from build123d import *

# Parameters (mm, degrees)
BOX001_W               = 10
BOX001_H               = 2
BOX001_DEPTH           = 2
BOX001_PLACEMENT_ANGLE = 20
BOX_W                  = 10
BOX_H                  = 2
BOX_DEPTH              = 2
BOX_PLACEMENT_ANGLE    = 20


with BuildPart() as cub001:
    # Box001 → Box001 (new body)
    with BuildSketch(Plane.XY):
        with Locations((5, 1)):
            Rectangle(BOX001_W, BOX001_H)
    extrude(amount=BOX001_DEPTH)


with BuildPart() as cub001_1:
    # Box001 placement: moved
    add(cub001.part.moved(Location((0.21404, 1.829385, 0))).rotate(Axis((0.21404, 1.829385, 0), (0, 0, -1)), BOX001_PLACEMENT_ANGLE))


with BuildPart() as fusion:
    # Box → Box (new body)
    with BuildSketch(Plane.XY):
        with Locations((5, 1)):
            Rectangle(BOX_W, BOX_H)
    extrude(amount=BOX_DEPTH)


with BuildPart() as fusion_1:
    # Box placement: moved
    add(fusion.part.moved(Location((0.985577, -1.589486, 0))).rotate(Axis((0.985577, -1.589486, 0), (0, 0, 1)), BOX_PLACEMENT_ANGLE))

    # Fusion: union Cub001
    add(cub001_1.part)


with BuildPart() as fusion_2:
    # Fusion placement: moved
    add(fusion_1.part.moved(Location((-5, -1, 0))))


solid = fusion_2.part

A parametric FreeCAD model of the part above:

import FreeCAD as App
import Part
import Sketcher

V = App.Vector

doc = App.newDocument("Part")
body = doc.addObject("PartDesign::Body", "Body")

# Sketch on XY plane
sketch1 = body.newObject("Sketcher::SketchObject", "Sketch")
sketch1.AttachmentSupport = (doc.getObject("XY_Plane"), [""])
sketch1.MapMode = "FlatFace"
sketch1.addGeometry(Part.LineSegment(V(0, 2, 0), V(0, 0, 0)), False)
sketch1.addGeometry(Part.LineSegment(V(0, 0, 0), V(10, 0, 0)), False)
sketch1.addGeometry(Part.LineSegment(V(10, 0, 0), V(10, 2, 0)), False)
sketch1.addGeometry(Part.LineSegment(V(10, 2, 0), V(0, 2, 0)), False)
sketch1.addConstraint(Sketcher.Constraint("Coincident", 0, 2, 1, 1))
sketch1.addConstraint(Sketcher.Constraint("Coincident", 1, 2, 2, 1))
sketch1.addConstraint(Sketcher.Constraint("Coincident", 2, 2, 3, 1))
sketch1.addConstraint(Sketcher.Constraint("Coincident", 3, 2, 0, 1))
sketch1.addConstraint(Sketcher.Constraint("Vertical", 0))
sketch1.addConstraint(Sketcher.Constraint("Horizontal", 1))
sketch1.addConstraint(Sketcher.Constraint("Vertical", 2))
sketch1.addConstraint(Sketcher.Constraint("Horizontal", 3))
sketch1.addConstraint(Sketcher.Constraint("Coincident", 0, 2, -1, 1))
sketch1.addConstraint(Sketcher.Constraint("DistanceX", 1, 1, 1, 2, 10.0))
sketch1.addConstraint(Sketcher.Constraint("DistanceY", 0, 2, 0, 1, 2.0))
pad1 = body.newObject("PartDesign::Pad", "Pad")
pad1.Profile = sketch1
pad1.Length = 2
body2 = doc.addObject("PartDesign::Body", "Body001")
doc.recompute()

body.Placement = App.Placement(V(0.21404, 1.829385, 0), App.Rotation(V(0, 0, -1), 20))
boolean = body2.newObject("PartDesign::Boolean", "Boolean")
boolean.Type = "Fuse"
boolean.addObjects([body])
body3 = doc.addObject("PartDesign::Body", "Body002")

# Sketch on XY plane
sketch2 = body3.newObject("Sketcher::SketchObject", "Sketch001")
sketch2.AttachmentSupport = (doc.getObject("XY_Plane002"), [""])
sketch2.MapMode = "FlatFace"
sketch2.addGeometry(Part.LineSegment(V(0, 2, 0), V(0, 0, 0)), False)
sketch2.addGeometry(Part.LineSegment(V(0, 0, 0), V(10, 0, 0)), False)
sketch2.addGeometry(Part.LineSegment(V(10, 0, 0), V(10, 2, 0)), False)
sketch2.addGeometry(Part.LineSegment(V(10, 2, 0), V(0, 2, 0)), False)
sketch2.addConstraint(Sketcher.Constraint("Coincident", 0, 2, 1, 1))
sketch2.addConstraint(Sketcher.Constraint("Coincident", 1, 2, 2, 1))
sketch2.addConstraint(Sketcher.Constraint("Coincident", 2, 2, 3, 1))
sketch2.addConstraint(Sketcher.Constraint("Coincident", 3, 2, 0, 1))
sketch2.addConstraint(Sketcher.Constraint("Vertical", 0))
sketch2.addConstraint(Sketcher.Constraint("Horizontal", 1))
sketch2.addConstraint(Sketcher.Constraint("Vertical", 2))
sketch2.addConstraint(Sketcher.Constraint("Horizontal", 3))
sketch2.addConstraint(Sketcher.Constraint("Coincident", 0, 2, -1, 1))
sketch2.addConstraint(Sketcher.Constraint("DistanceX", 1, 1, 1, 2, 10.0))
sketch2.addConstraint(Sketcher.Constraint("DistanceY", 0, 2, 0, 1, 2.0))
pad2 = body3.newObject("PartDesign::Pad", "Pad001")
pad2.Profile = sketch2
pad2.Length = 2
body4 = doc.addObject("PartDesign::Body", "Body003")
doc.recompute()

body3.Placement = App.Placement(V(0.985577, -1.589486, 0), App.Rotation(V(0, 0, 1), 20))
boolean2 = body4.newObject("PartDesign::Boolean", "Boolean001")
boolean2.Type = "Fuse"
boolean2.addObjects([body3])
doc.recompute()

boolean3 = body4.newObject("PartDesign::Boolean", "Boolean002")
boolean3.Type = "Fuse"
boolean3.addObjects([body2])
body5 = doc.addObject("PartDesign::Body", "Body004")
doc.recompute()

body4.Placement = App.Placement(V(-5, -1, 0), App.Rotation(V(0, 0, 1), 0))
boolean4 = body5.newObject("PartDesign::Boolean", "Boolean003")
boolean4.Type = "Fuse"
boolean4.addObjects([body4])

doc.recompute()
